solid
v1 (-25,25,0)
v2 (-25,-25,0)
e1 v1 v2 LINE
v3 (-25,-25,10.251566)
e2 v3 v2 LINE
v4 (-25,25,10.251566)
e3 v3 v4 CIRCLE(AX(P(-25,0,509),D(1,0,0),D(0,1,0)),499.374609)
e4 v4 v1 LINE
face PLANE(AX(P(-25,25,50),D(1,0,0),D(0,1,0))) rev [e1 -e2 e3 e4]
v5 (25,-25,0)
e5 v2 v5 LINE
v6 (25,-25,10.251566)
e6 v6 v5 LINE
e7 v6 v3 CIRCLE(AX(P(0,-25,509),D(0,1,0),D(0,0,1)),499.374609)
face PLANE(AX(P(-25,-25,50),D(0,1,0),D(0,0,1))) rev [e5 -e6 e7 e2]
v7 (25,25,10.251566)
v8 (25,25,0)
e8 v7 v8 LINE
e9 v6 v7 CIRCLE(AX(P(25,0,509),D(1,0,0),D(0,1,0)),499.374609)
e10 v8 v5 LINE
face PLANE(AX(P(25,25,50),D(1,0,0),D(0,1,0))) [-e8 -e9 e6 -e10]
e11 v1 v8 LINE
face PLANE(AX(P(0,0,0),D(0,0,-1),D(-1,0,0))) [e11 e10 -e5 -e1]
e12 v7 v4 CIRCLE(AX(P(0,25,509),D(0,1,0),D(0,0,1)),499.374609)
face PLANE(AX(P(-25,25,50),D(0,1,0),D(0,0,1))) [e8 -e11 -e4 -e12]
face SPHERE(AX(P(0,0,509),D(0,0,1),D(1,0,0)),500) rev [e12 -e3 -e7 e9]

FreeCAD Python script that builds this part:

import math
import FreeCAD as App
import Part
import Sketcher


def add_polygon(sketch, points):
    """Adds a closed chain of lines whose ends are joined by coincident constraints."""
    first, n = sketch.GeometryCount, len(points)
    for a, b in zip(points, points[1:] + points[:1]):
        sketch.addGeometry(Part.LineSegment(App.Vector(*a, 0), App.Vector(*b, 0)), False)
    for i in range(n):
        sketch.addConstraint(Sketcher.Constraint("Coincident", first + i, 2, first + (i + 1) % n, 1))

doc = App.newDocument("Part")
body = doc.addObject("PartDesign::Body", "Body")

sketch1 = body.newObject("Sketcher::SketchObject", "Sketch")
sketch1.AttachmentSupport = (doc.getObject("XY_Plane"), [""])
sketch1.MapMode = "FlatFace"
add_polygon(sketch1, [(-25, 25), (-25, -25), (25, -25), (25, 25)])
sketch1.addConstraint(Sketcher.Constraint("Vertical", 0))
sketch1.addConstraint(Sketcher.Constraint("Horizontal", 1))
sketch1.addConstraint(Sketcher.Constraint("Vertical", 2))
sketch1.addConstraint(Sketcher.Constraint("Horizontal", 3))
sketch1.addConstraint(Sketcher.Constraint("Symmetric", 0, 2, 2, 2, -1, 1))
sketch1.addConstraint(Sketcher.Constraint("Equal", 3, 0))
sketch1.addConstraint(Sketcher.Constraint("DistanceX", 1, 1, 1, 2, 50.0))
pad1 = body.newObject("PartDesign::Pad", "Pad")
pad1.Profile = sketch1
pad1.Length = 50

sketch2 = body.newObject("Sketcher::SketchObject", "Sketch001")
sketch2.AttachmentSupport = (doc.getObject("XZ_Plane"), [""])
sketch2.MapMode = "FlatFace"
sketch2.addGeometry(Part.LineSegment(App.Vector(0, 398, 0), App.Vector(487, 398, 0)), False)
sketch2.addGeometry(Part.ArcOfCircle(Part.Circle(App.Vector(0, 509, 0), App.Vector(0, 0, 1), 500), math.radians(-90), math.radians(-13)), False)
sketch2.addGeometry(Part.LineSegment(App.Vector(0, 9, 0), App.Vector(0, 398, 0)), False)
sketch2.addConstraint(Sketcher.Constraint("Coincident", 0, 2, 1, 2))
sketch2.addConstraint(Sketcher.Constraint("Coincident", 1, 1, 2, 1))
sketch2.addConstraint(Sketcher.Constraint("Coincident", 2, 2, 0, 1))
sketch2.addConstraint(Sketcher.Constraint("Horizontal", 0))
sketch2.addConstraint(Sketcher.Constraint("Vertical", 2))
sketch2.addConstraint(Sketcher.Constraint("PointOnObject", 1, 3, -2))
sketch2.addConstraint(Sketcher.Constraint("PointOnObject", 2, 2, -2))
sketch2.addConstraint(Sketcher.Constraint("Radius", 1, 500.0))
sketch2.addConstraint(Sketcher.Constraint("DistanceY", -1, 1, 1, 3, 509.0))
sketch2.addConstraint(Sketcher.Constraint("DistanceX", 0, 1, 0, 2, 487.422731))
groove = body.newObject("PartDesign::Groove", "Groove")
groove.Profile = sketch2
groove.ReferenceAxis = (sketch2, ["V_Axis"])
groove.Angle = 360

doc.recompute()
